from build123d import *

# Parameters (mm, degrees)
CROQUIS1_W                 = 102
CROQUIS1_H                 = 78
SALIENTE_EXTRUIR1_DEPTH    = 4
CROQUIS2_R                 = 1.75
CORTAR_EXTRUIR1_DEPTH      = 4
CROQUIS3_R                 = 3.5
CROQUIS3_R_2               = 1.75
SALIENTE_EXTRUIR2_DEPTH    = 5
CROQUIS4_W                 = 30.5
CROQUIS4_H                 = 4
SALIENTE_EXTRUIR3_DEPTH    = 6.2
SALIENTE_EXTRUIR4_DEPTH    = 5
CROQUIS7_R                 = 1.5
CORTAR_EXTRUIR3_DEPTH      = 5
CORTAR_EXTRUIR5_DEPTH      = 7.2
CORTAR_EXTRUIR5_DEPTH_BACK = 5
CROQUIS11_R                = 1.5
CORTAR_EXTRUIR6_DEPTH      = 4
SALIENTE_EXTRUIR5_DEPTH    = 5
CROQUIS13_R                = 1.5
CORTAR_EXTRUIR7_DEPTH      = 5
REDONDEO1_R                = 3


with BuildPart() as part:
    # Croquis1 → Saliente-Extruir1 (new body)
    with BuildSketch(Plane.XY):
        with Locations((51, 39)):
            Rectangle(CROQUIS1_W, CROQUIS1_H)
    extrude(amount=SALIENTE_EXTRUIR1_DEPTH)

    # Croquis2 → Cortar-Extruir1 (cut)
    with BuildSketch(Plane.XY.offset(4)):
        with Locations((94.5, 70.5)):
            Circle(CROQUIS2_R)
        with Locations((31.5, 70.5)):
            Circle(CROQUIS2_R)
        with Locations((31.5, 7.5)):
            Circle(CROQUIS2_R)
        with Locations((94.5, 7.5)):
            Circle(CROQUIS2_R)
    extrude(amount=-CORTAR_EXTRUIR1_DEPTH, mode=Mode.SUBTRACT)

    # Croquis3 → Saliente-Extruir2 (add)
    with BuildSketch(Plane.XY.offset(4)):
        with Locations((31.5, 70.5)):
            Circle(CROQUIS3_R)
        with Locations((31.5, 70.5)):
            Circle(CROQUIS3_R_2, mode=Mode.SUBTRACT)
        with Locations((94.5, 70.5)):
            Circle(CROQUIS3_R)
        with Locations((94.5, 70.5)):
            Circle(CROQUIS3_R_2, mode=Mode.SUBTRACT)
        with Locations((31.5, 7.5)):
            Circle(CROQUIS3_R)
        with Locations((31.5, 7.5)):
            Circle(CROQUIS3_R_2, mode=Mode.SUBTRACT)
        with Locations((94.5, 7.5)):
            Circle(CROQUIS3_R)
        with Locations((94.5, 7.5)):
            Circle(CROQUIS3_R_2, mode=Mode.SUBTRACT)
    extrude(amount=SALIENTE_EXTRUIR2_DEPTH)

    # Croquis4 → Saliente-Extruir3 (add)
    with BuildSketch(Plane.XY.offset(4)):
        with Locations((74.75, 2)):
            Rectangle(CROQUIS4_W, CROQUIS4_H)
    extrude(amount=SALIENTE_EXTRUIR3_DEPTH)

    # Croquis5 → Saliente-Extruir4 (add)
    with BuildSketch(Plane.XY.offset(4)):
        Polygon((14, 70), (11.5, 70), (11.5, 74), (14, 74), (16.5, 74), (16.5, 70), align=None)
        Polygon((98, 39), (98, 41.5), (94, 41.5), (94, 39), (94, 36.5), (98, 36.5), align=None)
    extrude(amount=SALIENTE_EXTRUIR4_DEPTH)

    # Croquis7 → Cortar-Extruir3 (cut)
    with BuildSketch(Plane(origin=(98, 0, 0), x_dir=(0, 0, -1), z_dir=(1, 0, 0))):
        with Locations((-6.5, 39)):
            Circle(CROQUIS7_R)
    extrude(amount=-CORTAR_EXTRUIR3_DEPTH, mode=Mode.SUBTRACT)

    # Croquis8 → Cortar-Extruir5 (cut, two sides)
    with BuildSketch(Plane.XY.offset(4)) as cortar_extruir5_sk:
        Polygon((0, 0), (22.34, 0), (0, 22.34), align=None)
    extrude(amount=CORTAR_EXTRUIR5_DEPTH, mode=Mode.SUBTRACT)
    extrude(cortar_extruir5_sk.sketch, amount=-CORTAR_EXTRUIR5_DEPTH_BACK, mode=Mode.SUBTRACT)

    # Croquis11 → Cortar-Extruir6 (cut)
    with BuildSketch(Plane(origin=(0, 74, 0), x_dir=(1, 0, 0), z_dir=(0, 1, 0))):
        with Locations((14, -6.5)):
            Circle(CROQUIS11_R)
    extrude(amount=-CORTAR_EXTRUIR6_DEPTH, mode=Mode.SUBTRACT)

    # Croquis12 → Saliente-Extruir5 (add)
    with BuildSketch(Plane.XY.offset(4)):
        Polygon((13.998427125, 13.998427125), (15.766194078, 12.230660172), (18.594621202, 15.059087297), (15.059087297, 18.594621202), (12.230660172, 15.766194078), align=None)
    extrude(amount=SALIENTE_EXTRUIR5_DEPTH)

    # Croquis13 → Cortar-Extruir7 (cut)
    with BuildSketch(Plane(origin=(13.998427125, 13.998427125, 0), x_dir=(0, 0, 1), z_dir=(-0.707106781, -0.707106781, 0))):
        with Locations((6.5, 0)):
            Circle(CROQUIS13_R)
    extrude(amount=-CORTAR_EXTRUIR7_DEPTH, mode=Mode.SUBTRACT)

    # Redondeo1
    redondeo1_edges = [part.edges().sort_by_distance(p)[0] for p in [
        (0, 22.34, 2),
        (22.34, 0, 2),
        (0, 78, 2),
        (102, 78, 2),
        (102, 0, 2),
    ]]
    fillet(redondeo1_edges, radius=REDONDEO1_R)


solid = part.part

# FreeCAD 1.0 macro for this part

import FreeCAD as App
import Part
import Sketcher
Q = App.Units.Quantity


def edges_at(feature, points):
    """Names of the edges that pass closest to the given points."""
    edges = feature.Shape.Edges
    near = lambda p: min(range(len(edges)), key=lambda i: edges[i].distToShape(Part.Vertex(*p))[0])
    return sorted({f"Edge{near(p) + 1}" for p in points})

doc = App.newDocument("Part")
body = doc.addObject("PartDesign::Body", "Body")

sketch1 = body.newObject("Sketcher::SketchObject", "Sketch")
sketch1.AttachmentSupport = (doc.getObject("XY_Plane"), [""])
sketch1.MapMode = "FlatFace"
sketch1.addGeometry(Part.LineSegment(App.Vector(0, 78, 0), App.Vector(0, 0, 0)), False)
sketch1.addGeometry(Part.LineSegment(App.Vector(0, 0, 0), App.Vector(102, 0, 0)), False)
sketch1.addGeometry(Part.LineSegment(App.Vector(102, 0, 0), App.Vector(102, 78, 0)), False)
sketch1.addGeometry(Part.LineSegment(App.Vector(102, 78, 0), App.Vector(0, 78, 0)), False)
sketch1.addConstraint(Sketcher.Constraint("Coincident", 0, 2, 1, 1))
sketch1.addConstraint(Sketcher.Constraint("Coincident", 1, 2, 2, 1))
sketch1.addConstraint(Sketcher.Constraint("Coincident", 2, 2, 3, 1))
sketch1.addConstraint(Sketcher.Constraint("Coincident", 3, 2, 0, 1))
sketch1.addConstraint(Sketcher.Constraint("Vertical", 0))
sketch1.addConstraint(Sketcher.Constraint("Horizontal", 1))
sketch1.addConstraint(Sketcher.Constraint("Vertical", 2))
sketch1.addConstraint(Sketcher.Constraint("Horizontal", 3))
sketch1.addConstraint(Sketcher.Constraint("Coincident", 0, 2, -1, 1))
sketch1.addConstraint(Sketcher.Constraint("DistanceX", 1, 1, 1, 2, Q("102 mm")))
sketch1.addConstraint(Sketcher.Constraint("DistanceY", 0, 2, 0, 1, Q("78 mm")))
pad1 = body.newObject("PartDesign::Pad", "Pad")
pad1.Profile = sketch1
pad1.Length = 4

sketch2 = body.newObject("Sketcher::SketchObject", "Sketch001")
sketch2.AttachmentSupport = (doc.getObject("XY_Plane"), [""])
sketch2.MapMode = "FlatFace"
sketch2.AttachmentOffset = App.Placement(App.Vector(0, 0, 4), App.Rotation())
sketch2.addGeometry(Part.Circle(App.Vector(94.5, 70.5, 0), App.Vector(0, 0, 1), 1.75), False)
sketch2.addGeometry(Part.Circle(App.Vector(31.5, 70.5, 0), App.Vector(0, 0, 1), 1.75), False)
sketch2.addGeometry(Part.Circle(App.Vector(31.5, 7.5, 0), App.Vector(0, 0, 1), 1.75), False)
sketch2.addGeometry(Part.Circle(App.Vector(94.5, 7.5, 0), App.Vector(0, 0, 1), 1.75), False)
sketch2.addConstraint(Sketcher.Constraint("Equal", 0, 1))
sketch2.addConstraint(Sketcher.Constraint("Equal", 1, 2))
sketch2.addConstraint(Sketcher.Constraint("Equal", 2, 3))
sketch2.addConstraint(Sketcher.Constraint("Horizontal", 0, 3, 1, 3))
sketch2.addConstraint(Sketcher.Constraint("Horizontal", 2, 3, 3, 3))
sketch2.addConstraint(Sketcher.Constraint("Vertical", 1, 3, 2, 3))
sketch2.addConstraint(Sketcher.Constraint("Vertical", 0, 3, 3, 3))
sketch2.addConstraint(Sketcher.Constraint("Diameter", 0, Q("3.5 mm")))
sketch2.addConstraint(Sketcher.Constraint("DistanceX", 1, 3, 0, 3, Q("63 mm")))
sketch2.addConstraint(Sketcher.Constraint("DistanceY", 2, 3, 1, 3, Q("63 mm")))
sketch2.addConstraint(Sketcher.Constraint("DistanceX", -1, 1, 0, 3, Q("94.5 mm")))
sketch2.addConstraint(Sketcher.Constraint("DistanceY", -1, 1, 0, 3, Q("70.5 mm")))
pocket1 = body.newObject("PartDesign::Pocket", "Pocket")
pocket1.Profile = sketch2
pocket1.Length = 4

sketch3 = body.newObject("Sketcher::SketchObject", "Sketch002")
sketch3.AttachmentSupport = (doc.getObject("XY_Plane"), [""])
sketch3.MapMode = "FlatFace"
sketch3.AttachmentOffset = App.Placement(App.Vector(0, 0, 4), App.Rotation())
sketch3.addGeometry(Part.Circle(App.Vector(31.5, 70.5, 0), App.Vector(0, 0, 1), 3.5), False)
sketch3.addGeometry(Part.Circle(App.Vector(31.5, 70.5, 0), App.Vector(0, 0, 1), 1.75), False)
sketch3.addGeometry(Part.Circle(App.Vector(94.5, 70.5, 0), App.Vector(0, 0, 1), 3.5), False)
sketch3.addGeometry(Part.Circle(App.Vector(94.5, 70.5, 0), App.Vector(0, 0, 1), 1.75), False)
sketch3.addGeometry(Part.Circle(App.Vector(31.5, 7.5, 0), App.Vector(0, 0, 1), 3.5), False)
sketch3.addGeometry(Part.Circle(App.Vector(31.5, 7.5, 0), App.Vector(0, 0, 1), 1.75), False)
sketch3.addGeometry(Part.Circle(App.Vector(94.5, 7.5, 0), App.Vector(0, 0, 1), 3.5), False)
sketch3.addGeometry(Part.Circle(App.Vector(94.5, 7.5, 0), App.Vector(0, 0, 1), 1.75), False)
sketch3.addConstraint(Sketcher.Constraint("Coincident", 1, 3, 0, 3))
sketch3.addConstraint(Sketcher.Constraint("Coincident", 3, 3, 2, 3))
sketch3.addConstraint(Sketcher.Constraint("Coincident", 5, 3, 4, 3))
sketch3.addConstraint(Sketcher.Constraint("Coincident", 7, 3, 6, 3))
sketch3.addConstraint(Sketcher.Constraint("Equal", 0, 2))
sketch3.addConstraint(Sketcher.Constraint("Equal", 1, 3))
sketch3.addConstraint(Sketcher.Constraint("Equal", 2, 4))
sketch3.addConstraint(Sketcher.Constraint("Equal", 3, 5))
sketch3.addConstraint(Sketcher.Constraint("Equal", 4, 6))
sketch3.addConstraint(Sketcher.Constraint("Equal", 5, 7))
sketch3.addConstraint(Sketcher.Constraint("Horizontal", 1, 3, 2, 3))
sketch3.addConstraint(Sketcher.Constraint("Horizontal", 5, 3, 6, 3))
sketch3.addConstraint(Sketcher.Constraint("Vertical", 1, 3, 4, 3))
sketch3.addConstraint(Sketcher.Constraint("Vertical", 3, 3, 6, 3))
sketch3.addConstraint(Sketcher.Constraint("Diameter", 0, Q("7 mm")))
sketch3.addConstraint(Sketcher.Constraint("Diameter", 1, Q("3.5 mm")))
sketch3.addConstraint(Sketcher.Constraint("DistanceX", 0, 3, 2, 3, Q("63 mm")))
sketch3.addConstraint(Sketcher.Constraint("DistanceY", 4, 3, 0, 3, Q("63 mm")))
sketch3.addConstraint(Sketcher.Constraint("DistanceX", -1, 1, 0, 3, Q("31.5 mm")))
sketch3.addConstraint(Sketcher.Constraint("DistanceY", -1, 1, 0, 3, Q("70.5 mm")))
pad2 = body.newObject("PartDesign::Pad", "Pad001")
pad2.Profile = sketch3
pad2.Length = 5

sketch4 = body.newObject("Sketcher::SketchObject", "Sketch003")
sketch4.AttachmentSupport = (doc.getObject("XY_Plane"), [""])
sketch4.MapMode = "FlatFace"
sketch4.AttachmentOffset = App.Placement(App.Vector(0, 0, 4), App.Rotation())
sketch4.addGeometry(Part.LineSegment(App.Vector(59.5, 4, 0), App.Vector(59.5, 0, 0)), False)
sketch4.addGeometry(Part.LineSegment(App.Vector(59.5, 0, 0), App.Vector(90, 0, 0)), False)
sketch4.addGeometry(Part.LineSegment(App.Vector(90, 0, 0), App.Vector(90, 4, 0)), False)
sketch4.addGeometry(Part.LineSegment(App.Vector(90, 4, 0), App.Vector(59.5, 4, 0)), False)
sketch4.addConstraint(Sketcher.Constraint("Coincident", 0, 2, 1, 1))
sketch4.addConstraint(Sketcher.Constraint("Coincident", 1, 2, 2, 1))
sketch4.addConstraint(Sketcher.Constraint("Coincident", 2, 2, 3, 1))
sketch4.addConstraint(Sketcher.Constraint("Coincident", 3, 2, 0, 1))
sketch4.addConstraint(Sketcher.Constraint("Vertical", 0))
sketch4.addConstraint(Sketcher.Constraint("Horizontal", 1))
sketch4.addConstraint(Sketcher.Constraint("Vertical", 2))
sketch4.addConstraint(Sketcher.Constraint("Horizontal", 3))
sketch4.addConstraint(Sketcher.Constraint("PointOnObject", 0, 2, -1))
sketch4.addConstraint(Sketcher.Constraint("DistanceY", 0, 2, 0, 1, Q("4 mm")))
sketch4.addConstraint(Sketcher.Constraint("DistanceX", 1, 1, 1, 2, Q("30.5 mm")))
sketch4.addConstraint(Sketcher.Constraint("DistanceX", -1, 1, 1, 2, Q("90 mm")))
pad3 = body.newObject("PartDesign::Pad", "Pad002")
pad3.Profile = sketch4
pad3.Length = 6.2

sketch5 = body.newObject("Sketcher::SketchObject", "Sketch004")
sketch5.AttachmentSupport = (doc.getObject("XY_Plane"), [""])
sketch5.MapMode = "FlatFace"
sketch5.AttachmentOffset = App.Placement(App.Vector(0, 0, 4), App.Rotation())
sketch5.addGeometry(Part.LineSegment(App.Vector(11.5, 70, 0), App.Vector(16.5, 70, 0)), False)
sketch5.addGeometry(Part.LineSegment(App.Vector(16.5, 70, 0), App.Vector(16.5, 74, 0)), False)
sketch5.addGeometry(Part.LineSegment(App.Vector(16.5, 74, 0), App.Vector(11.5, 74, 0)), False)
sketch5.addGeometry(Part.LineSegment(App.Vector(11.5, 74, 0), App.Vector(11.5, 70, 0)), False)
sketch5.addGeometry(Part.LineSegment(App.Vector(98, 41.5, 0), App.Vector(94, 41.5, 0)), False)
sketch5.addGeometry(Part.LineSegment(App.Vector(94, 41.5, 0), App.Vector(94, 36.5, 0)), False)
sketch5.addGeometry(Part.LineSegment(App.Vector(94, 36.5, 0), App.Vector(98, 36.5, 0)), False)
sketch5.addGeometry(Part.LineSegment(App.Vector(98, 36.5, 0), App.Vector(98, 41.5, 0)), False)
sketch5.addConstraint(Sketcher.Constraint("Coincident", 0, 2, 1, 1))
sketch5.addConstraint(Sketcher.Constraint("Coincident", 1, 2, 2, 1))
sketch5.addConstraint(Sketcher.Constraint("Coincident", 2, 2, 3, 1))
sketch5.addConstraint(Sketcher.Constraint("Coincident", 3, 2, 0, 1))
sketch5.addConstraint(Sketcher.Constraint("Coincident", 4, 2, 5, 1))
sketch5.addConstraint(Sketcher.Constraint("Coincident", 5, 2, 6, 1))
sketch5.addConstraint(Sketcher.Constraint("Coincident", 6, 2, 7, 1))
sketch5.addConstraint(Sketcher.Constraint("Coincident", 7, 2, 4, 1))
sketch5.addConstraint(Sketcher.Constraint("Horizontal", 0))
sketch5.addConstraint(Sketcher.Constraint("Vertical", 1))
sketch5.addConstraint(Sketcher.Constraint("Horizontal", 2))
sketch5.addConstraint(Sketcher.Constraint("Vertical", 3))
sketch5.addConstraint(Sketcher.Constraint("Horizontal", 4))
sketch5.addConstraint(Sketcher.Constraint("Vertical", 5))
sketch5.addConstraint(Sketcher.Constraint("Horizontal", 6))
sketch5.addConstraint(Sketcher.Constraint("Vertical", 7))
sketch5.addConstraint(Sketcher.Constraint("Equal", 6, 1))
sketch5.addConstraint(Sketcher.Constraint("Equal", 2, 5))
sketch5.addConstraint(Sketcher.Constraint("DistanceX", 0, 1, 0, 2, Q("5 mm")))
sketch5.addConstraint(Sketcher.Constraint("DistanceX", 4, 2, 4, 1, Q("4 mm")))
sketch5.addConstraint(Sketcher.Constraint("DistanceY", -1, 1, 0, 2, Q("70 mm")))
sketch5.addConstraint(Sketcher.Constraint("DistanceX", -1, 1, 4, 2, Q("94 mm")))
sketch5.addConstraint(Sketcher.Constraint("DistanceX", -1, 1, 0, 2, Q("16.5 mm")))
sketch5.addConstraint(Sketcher.Constraint("DistanceY", -1, 1, 4, 2, Q("41.5 mm")))
pad4 = body.newObject("PartDesign::Pad", "Pad003")
pad4.Profile = sketch5
pad4.Length = 5

sketch6 = body.newObject("Sketcher::SketchObject", "Sketch005")
sketch6.AttachmentSupport = (doc.getObject("YZ_Plane"), [""])
sketch6.MapMode = "FlatFace"
sketch6.AttachmentOffset = App.Placement(App.Vector(0, 0, 98), App.Rotation())
sketch6.addGeometry(Part.Circle(App.Vector(39, 6.5, 0), App.Vector(0, 0, 1), 1.5), False)
sketch6.addConstraint(Sketcher.Constraint("Diameter", 0, Q("3 mm")))
sketch6.addConstraint(Sketcher.Constraint("DistanceX", -1, 1, 0, 3, Q("39 mm")))
sketch6.addConstraint(Sketcher.Constraint("DistanceY", -1, 1, 0, 3, Q("6.5 mm")))
pocket2 = body.newObject("PartDesign::Pocket", "Pocket001")
pocket2.Profile = sketch6
pocket2.Length = 5

sketch7 = body.newObject("Sketcher::SketchObject", "Sketch006")
sketch7.AttachmentSupport = (doc.getObject("XY_Plane"), [""])
sketch7.MapMode = "FlatFace"
sketch7.AttachmentOffset = App.Placement(App.Vector(0, 0, 4), App.Rotation())
sketch7.addGeometry(Part.LineSegment(App.Vector(0, 0, 0), App.Vector(22.34, 0, 0)), False)
sketch7.addGeometry(Part.LineSegment(App.Vector(22.34, 0, 0), App.Vector(0, 22.34, 0)), False)
sketch7.addGeometry(Part.LineSegment(App.Vector(0, 22.34, 0), App.Vector(0, 0, 0)), False)
sketch7.addConstraint(Sketcher.Constraint("Coincident", 0, 2, 1, 1))
sketch7.addConstraint(Sketcher.Constraint("Coincident", 1, 2, 2, 1))
sketch7.addConstraint(Sketcher.Constraint("Coincident", 2, 2, 0, 1))
sketch7.addConstraint(Sketcher.Constraint("Horizontal", 0))
sketch7.addConstraint(Sketcher.Constraint("Vertical", 2))
sketch7.addConstraint(Sketcher.Constraint("Coincident", 2, 2, -1, 1))
sketch7.addConstraint(Sketcher.Constraint("Equal", 0, 2))
sketch7.addConstraint(Sketcher.Constraint("DistanceX", 0, 1, 0, 2, Q("22.34 mm")))
pocket3 = body.newObject("PartDesign::Pocket", "Pocket002")
pocket3.Profile = sketch7
pocket3.Type = "ThroughAll"
pocket3.Midplane = True

sketch8 = body.newObject("Sketcher::SketchObject", "Sketch007")
sketch8.AttachmentSupport = (doc.getObject("XZ_Plane"), [""])
sketch8.MapMode = "FlatFace"
sketch8.AttachmentOffset = App.Placement(App.Vector(0, 0, -74), App.Rotation())
sketch8.addGeometry(Part.Circle(App.Vector(14, 6.5, 0), App.Vector(0, 0, 1), 1.5), False)
sketch8.addConstraint(Sketcher.Constraint("Diameter", 0, Q("3 mm")))
sketch8.addConstraint(Sketcher.Constraint("DistanceX", -1, 1, 0, 3, Q("14 mm")))
sketch8.addConstraint(Sketcher.Constraint("DistanceY", -1, 1, 0, 3, Q("6.5 mm")))
pocket4 = body.newObject("PartDesign::Pocket", "Pocket003")
pocket4.Profile = sketch8
pocket4.Length = 4
pocket4.Reversed = True

sketch9 = body.newObject("Sketcher::SketchObject", "Sketch008")
sketch9.AttachmentSupport = (doc.getObject("XY_Plane"), [""])
sketch9.MapMode = "FlatFace"
sketch9.AttachmentOffset = App.Placement(App.Vector(0, 0, 4), App.Rotation())
sketch9.addGeometry(Part.LineSegment(App.Vector(15.766194, 12.23066, 0), App.Vector(18.594621, 15.059087, 0)), False)
sketch9.addGeometry(Part.LineSegment(App.Vector(18.594621, 15.059087, 0), App.Vector(15.059087, 18.594621, 0)), False)
sketch9.addGeometry(Part.LineSegment(App.Vector(15.059087, 18.594621, 0), App.Vector(12.23066, 15.766194, 0)), False)
sketch9.addGeometry(Part.LineSegment(App.Vector(12.23066, 15.766194, 0), App.Vector(15.766194, 12.23066, 0)), False)
sketch9.addConstraint(Sketcher.Constraint("Coincident", 0, 2, 1, 1))
sketch9.addConstraint(Sketcher.Constraint("Coincident", 1, 2, 2, 1))
sketch9.addConstraint(Sketcher.Constraint("Coincident", 2, 2, 3, 1))
sketch9.addConstraint(Sketcher.Constraint("Coincident", 3, 2, 0, 1))
sketch9.addConstraint(Sketcher.Constraint("Perpendicular", 0, 1))
sketch9.addConstraint(Sketcher.Constraint("Perpendicular", 1, 2))
sketch9.addConstraint(Sketcher.Constraint("Perpendicular", 2, 3))
sketch9.addConstraint(Sketcher.Constraint("Angle", 0, Q("45 deg")))
sketch9.addConstraint(Sketcher.Constraint("Distance", 0, Q("4 mm")))
sketch9.addConstraint(Sketcher.Constraint("Distance", 1, Q("5 mm")))
sketch9.addConstraint(Sketcher.Constraint("DistanceX", -1, 1, 0, 2, Q("18.594621 mm")))
sketch9.addConstraint(Sketcher.Constraint("DistanceY", -1, 1, 1, 2, Q("18.594621 mm")))
pad5 = body.newObject("PartDesign::Pad", "Pad004")
pad5.Profile = sketch9
pad5.Length = 5

sketch10 = body.newObject("Sketcher::SketchObject", "Sketch009")
sketch10.Placement = App.Placement(App.Vector(13.998427, 13.998427, 0), App.Rotation(App.Vector(0, 0, 1), App.Vector(-0.707106781, 0.707106781, 0), App.Vector(-0.707106781, -0.707106781, 0), "ZXY"))
sketch10.addGeometry(Part.Circle(App.Vector(6.5, 0, 0), App.Vector(0, 0, 1), 1.5), False)
sketch10.addConstraint(Sketcher.Constraint("PointOnObject", 0, 3, -1))
sketch10.addConstraint(Sketcher.Constraint("Diameter", 0, Q("3 mm")))
sketch10.addConstraint(Sketcher.Constraint("DistanceX", -1, 1, 0, 3, Q("6.5 mm")))
pocket5 = body.newObject("PartDesign::Pocket", "Pocket004")
pocket5.Profile = sketch10
pocket5.Length = 5
doc.recompute()

fillet = body.newObject("PartDesign::Fillet", "Fillet")
fillet.Base = (pocket5, edges_at(pocket5, [
    (0, 22.34, 2),
    (22.34, 0, 2),
    (0, 78, 2),
    (102, 78, 2),
    (102, 0, 2),
]))
fillet.Radius = 3

doc.recompute()
